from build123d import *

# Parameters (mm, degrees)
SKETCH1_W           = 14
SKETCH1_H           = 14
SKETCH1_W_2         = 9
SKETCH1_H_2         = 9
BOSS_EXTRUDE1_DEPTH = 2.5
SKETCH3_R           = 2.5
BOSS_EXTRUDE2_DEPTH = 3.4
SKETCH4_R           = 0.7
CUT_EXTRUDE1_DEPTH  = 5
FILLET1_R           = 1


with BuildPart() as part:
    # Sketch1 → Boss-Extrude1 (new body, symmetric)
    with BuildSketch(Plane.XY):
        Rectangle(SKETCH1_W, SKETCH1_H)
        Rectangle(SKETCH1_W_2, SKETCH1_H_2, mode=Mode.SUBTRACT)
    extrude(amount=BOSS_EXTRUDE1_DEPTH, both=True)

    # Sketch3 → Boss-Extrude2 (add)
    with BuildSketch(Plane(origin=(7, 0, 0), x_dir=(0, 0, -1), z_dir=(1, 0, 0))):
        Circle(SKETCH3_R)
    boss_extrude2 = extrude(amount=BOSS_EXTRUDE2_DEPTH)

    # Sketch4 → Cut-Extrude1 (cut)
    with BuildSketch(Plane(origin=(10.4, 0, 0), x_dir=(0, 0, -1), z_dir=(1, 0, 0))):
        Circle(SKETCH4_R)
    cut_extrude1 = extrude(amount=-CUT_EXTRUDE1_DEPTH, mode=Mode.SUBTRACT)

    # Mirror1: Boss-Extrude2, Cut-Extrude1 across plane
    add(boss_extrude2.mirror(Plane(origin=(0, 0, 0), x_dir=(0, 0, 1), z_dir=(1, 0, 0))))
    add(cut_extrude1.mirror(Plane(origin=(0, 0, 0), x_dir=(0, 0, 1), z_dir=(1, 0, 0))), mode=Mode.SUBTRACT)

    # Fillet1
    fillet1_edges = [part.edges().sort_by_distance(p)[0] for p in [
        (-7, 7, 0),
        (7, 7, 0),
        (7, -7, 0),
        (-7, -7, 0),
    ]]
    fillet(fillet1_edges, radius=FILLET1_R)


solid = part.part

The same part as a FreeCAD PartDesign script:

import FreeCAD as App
import Part
import Sketcher

V = App.Vector
Q = App.Units.Quantity


def edges_at(feature, points):
    """Names of the edges that pass closest to the given points."""
    edges = feature.Shape.Edges
    near = lambda p: min(range(len(edges)), key=lambda i: edges[i].distToShape(Part.Vertex(*p))[0])
    return sorted({f"Edge{near(p) + 1}" for p in points})

doc = App.newDocument("Part")
body = doc.addObject("PartDesign::Body", "Body")

# Sketch on XY plane
sketch1 = body.newObject("Sketcher::SketchObject", "Sketch")
sketch1.AttachmentSupport = (doc.getObject("XY_Plane"), [""])
sketch1.MapMode = "FlatFace"
sketch1.addGeometry([
    Part.LineSegment(V(-7, 7, 0), V(-7, -7, 0)),  # 0
    Part.LineSegment(V(-7, -7, 0), V(7, -7, 0)),  # 1
    Part.LineSegment(V(7, -7, 0), V(7, 7, 0)),  # 2
    Part.LineSegment(V(7, 7, 0), V(-7, 7, 0)),  # 3
    Part.LineSegment(V(4, -4, 0), V(-4, -4, 0)),  # 4
    Part.LineSegment(V(-4, -4, 0), V(-4, 4, 0)),  # 5
    Part.LineSegment(V(-4, 4, 0), V(4, 4, 0)),  # 6
    Part.LineSegment(V(4, 4, 0), V(4, -4, 0)),  # 7
], False)
sketch1.addConstraint([
    Sketcher.Constraint("Coincident", 0, 2, 1, 1),
    Sketcher.Constraint("Coincident", 1, 2, 2, 1),
    Sketcher.Constraint("Coincident", 2, 2, 3, 1),
    Sketcher.Constraint("Coincident", 3, 2, 0, 1),
    Sketcher.Constraint("Coincident", 4, 2, 5, 1),
    Sketcher.Constraint("Coincident", 5, 2, 6, 1),
    Sketcher.Constraint("Coincident", 6, 2, 7, 1),
    Sketcher.Constraint("Coincident", 7, 2, 4, 1),
    Sketcher.Constraint("Vertical", 0),
    Sketcher.Constraint("Horizontal", 1),
    Sketcher.Constraint("Vertical", 2),
    Sketcher.Constraint("Horizontal", 3),
    Sketcher.Constraint("Horizontal", 4),
    Sketcher.Constraint("Vertical", 5),
    Sketcher.Constraint("Horizontal", 6),
    Sketcher.Constraint("Vertical", 7),
    Sketcher.Constraint("Symmetric", 0, 2, 2, 2, -1, 1),
    Sketcher.Constraint("Symmetric", 4, 2, 6, 2, -1, 1),
    Sketcher.Constraint("Equal", 3, 0),
    Sketcher.Constraint("Equal", 6, 5),
    Sketcher.Constraint("DistanceX", 1, 1, 1, 2, Q("14 mm")),
    Sketcher.Constraint("DistanceX", 4, 2, 4, 1, Q("9 mm")),
])
pad1 = body.newObject("PartDesign::Pad", "Pad")
pad1.Profile = sketch1
pad1.Length = 5
pad1.Midplane = True

# Sketch on YZ plane
sketch2 = body.newObject("Sketcher::SketchObject", "Sketch001")
sketch2.AttachmentSupport = (doc.getObject("YZ_Plane"), [""])
sketch2.MapMode = "FlatFace"
sketch2.AttachmentOffset = App.Placement(V(0, 0, 7), App.Rotation())
sketch2.addGeometry(Part.Circle(V(0, 0, 0), V(0, 0, 1), 2.5), False)
sketch2.addConstraint([
    Sketcher.Constraint("Coincident", 0, 3, -1, 1),
    Sketcher.Constraint("Diameter", 0, Q("5 mm")),
])
pad2 = body.newObject("PartDesign::Pad", "Pad001")
pad2.Profile = sketch2
pad2.Length = 3.4

# Sketch on YZ plane
sketch3 = body.newObject("Sketcher::SketchObject", "Sketch002")
sketch3.AttachmentSupport = (doc.getObject("YZ_Plane"), [""])
sketch3.MapMode = "FlatFace"
sketch3.AttachmentOffset = App.Placement(V(0, 0, 10.4), App.Rotation())
sketch3.addGeometry(Part.Circle(V(0, 0, 0), V(0, 0, 1), 0.7), False)
sketch3.addConstraint([
    Sketcher.Constraint("Coincident", 0, 3, -1, 1),
    Sketcher.Constraint("Diameter", 0, Q("1.4 mm")),
])
pocket1 = body.newObject("PartDesign::Pocket", "Pocket")
pocket1.Profile = sketch3
pocket1.Length = 5
doc.recompute()

mirrored = body.newObject("PartDesign::Mirrored", "Mirrored")
mirrored.Originals = [pad2, pocket1]
mirrored.MirrorPlane = (doc.getObject("YZ_Plane"), [""])
body.Tip = mirrored
doc.recompute()

fillet = body.newObject("PartDesign::Fillet", "Fillet")
fillet.Base = (mirrored, edges_at(mirrored, [
    (-7, 7, 0),
    (7, 7, 0),
    (7, -7, 0),
    (-7, -7, 0),
]))
fillet.Radius = 1

doc.recompute()
